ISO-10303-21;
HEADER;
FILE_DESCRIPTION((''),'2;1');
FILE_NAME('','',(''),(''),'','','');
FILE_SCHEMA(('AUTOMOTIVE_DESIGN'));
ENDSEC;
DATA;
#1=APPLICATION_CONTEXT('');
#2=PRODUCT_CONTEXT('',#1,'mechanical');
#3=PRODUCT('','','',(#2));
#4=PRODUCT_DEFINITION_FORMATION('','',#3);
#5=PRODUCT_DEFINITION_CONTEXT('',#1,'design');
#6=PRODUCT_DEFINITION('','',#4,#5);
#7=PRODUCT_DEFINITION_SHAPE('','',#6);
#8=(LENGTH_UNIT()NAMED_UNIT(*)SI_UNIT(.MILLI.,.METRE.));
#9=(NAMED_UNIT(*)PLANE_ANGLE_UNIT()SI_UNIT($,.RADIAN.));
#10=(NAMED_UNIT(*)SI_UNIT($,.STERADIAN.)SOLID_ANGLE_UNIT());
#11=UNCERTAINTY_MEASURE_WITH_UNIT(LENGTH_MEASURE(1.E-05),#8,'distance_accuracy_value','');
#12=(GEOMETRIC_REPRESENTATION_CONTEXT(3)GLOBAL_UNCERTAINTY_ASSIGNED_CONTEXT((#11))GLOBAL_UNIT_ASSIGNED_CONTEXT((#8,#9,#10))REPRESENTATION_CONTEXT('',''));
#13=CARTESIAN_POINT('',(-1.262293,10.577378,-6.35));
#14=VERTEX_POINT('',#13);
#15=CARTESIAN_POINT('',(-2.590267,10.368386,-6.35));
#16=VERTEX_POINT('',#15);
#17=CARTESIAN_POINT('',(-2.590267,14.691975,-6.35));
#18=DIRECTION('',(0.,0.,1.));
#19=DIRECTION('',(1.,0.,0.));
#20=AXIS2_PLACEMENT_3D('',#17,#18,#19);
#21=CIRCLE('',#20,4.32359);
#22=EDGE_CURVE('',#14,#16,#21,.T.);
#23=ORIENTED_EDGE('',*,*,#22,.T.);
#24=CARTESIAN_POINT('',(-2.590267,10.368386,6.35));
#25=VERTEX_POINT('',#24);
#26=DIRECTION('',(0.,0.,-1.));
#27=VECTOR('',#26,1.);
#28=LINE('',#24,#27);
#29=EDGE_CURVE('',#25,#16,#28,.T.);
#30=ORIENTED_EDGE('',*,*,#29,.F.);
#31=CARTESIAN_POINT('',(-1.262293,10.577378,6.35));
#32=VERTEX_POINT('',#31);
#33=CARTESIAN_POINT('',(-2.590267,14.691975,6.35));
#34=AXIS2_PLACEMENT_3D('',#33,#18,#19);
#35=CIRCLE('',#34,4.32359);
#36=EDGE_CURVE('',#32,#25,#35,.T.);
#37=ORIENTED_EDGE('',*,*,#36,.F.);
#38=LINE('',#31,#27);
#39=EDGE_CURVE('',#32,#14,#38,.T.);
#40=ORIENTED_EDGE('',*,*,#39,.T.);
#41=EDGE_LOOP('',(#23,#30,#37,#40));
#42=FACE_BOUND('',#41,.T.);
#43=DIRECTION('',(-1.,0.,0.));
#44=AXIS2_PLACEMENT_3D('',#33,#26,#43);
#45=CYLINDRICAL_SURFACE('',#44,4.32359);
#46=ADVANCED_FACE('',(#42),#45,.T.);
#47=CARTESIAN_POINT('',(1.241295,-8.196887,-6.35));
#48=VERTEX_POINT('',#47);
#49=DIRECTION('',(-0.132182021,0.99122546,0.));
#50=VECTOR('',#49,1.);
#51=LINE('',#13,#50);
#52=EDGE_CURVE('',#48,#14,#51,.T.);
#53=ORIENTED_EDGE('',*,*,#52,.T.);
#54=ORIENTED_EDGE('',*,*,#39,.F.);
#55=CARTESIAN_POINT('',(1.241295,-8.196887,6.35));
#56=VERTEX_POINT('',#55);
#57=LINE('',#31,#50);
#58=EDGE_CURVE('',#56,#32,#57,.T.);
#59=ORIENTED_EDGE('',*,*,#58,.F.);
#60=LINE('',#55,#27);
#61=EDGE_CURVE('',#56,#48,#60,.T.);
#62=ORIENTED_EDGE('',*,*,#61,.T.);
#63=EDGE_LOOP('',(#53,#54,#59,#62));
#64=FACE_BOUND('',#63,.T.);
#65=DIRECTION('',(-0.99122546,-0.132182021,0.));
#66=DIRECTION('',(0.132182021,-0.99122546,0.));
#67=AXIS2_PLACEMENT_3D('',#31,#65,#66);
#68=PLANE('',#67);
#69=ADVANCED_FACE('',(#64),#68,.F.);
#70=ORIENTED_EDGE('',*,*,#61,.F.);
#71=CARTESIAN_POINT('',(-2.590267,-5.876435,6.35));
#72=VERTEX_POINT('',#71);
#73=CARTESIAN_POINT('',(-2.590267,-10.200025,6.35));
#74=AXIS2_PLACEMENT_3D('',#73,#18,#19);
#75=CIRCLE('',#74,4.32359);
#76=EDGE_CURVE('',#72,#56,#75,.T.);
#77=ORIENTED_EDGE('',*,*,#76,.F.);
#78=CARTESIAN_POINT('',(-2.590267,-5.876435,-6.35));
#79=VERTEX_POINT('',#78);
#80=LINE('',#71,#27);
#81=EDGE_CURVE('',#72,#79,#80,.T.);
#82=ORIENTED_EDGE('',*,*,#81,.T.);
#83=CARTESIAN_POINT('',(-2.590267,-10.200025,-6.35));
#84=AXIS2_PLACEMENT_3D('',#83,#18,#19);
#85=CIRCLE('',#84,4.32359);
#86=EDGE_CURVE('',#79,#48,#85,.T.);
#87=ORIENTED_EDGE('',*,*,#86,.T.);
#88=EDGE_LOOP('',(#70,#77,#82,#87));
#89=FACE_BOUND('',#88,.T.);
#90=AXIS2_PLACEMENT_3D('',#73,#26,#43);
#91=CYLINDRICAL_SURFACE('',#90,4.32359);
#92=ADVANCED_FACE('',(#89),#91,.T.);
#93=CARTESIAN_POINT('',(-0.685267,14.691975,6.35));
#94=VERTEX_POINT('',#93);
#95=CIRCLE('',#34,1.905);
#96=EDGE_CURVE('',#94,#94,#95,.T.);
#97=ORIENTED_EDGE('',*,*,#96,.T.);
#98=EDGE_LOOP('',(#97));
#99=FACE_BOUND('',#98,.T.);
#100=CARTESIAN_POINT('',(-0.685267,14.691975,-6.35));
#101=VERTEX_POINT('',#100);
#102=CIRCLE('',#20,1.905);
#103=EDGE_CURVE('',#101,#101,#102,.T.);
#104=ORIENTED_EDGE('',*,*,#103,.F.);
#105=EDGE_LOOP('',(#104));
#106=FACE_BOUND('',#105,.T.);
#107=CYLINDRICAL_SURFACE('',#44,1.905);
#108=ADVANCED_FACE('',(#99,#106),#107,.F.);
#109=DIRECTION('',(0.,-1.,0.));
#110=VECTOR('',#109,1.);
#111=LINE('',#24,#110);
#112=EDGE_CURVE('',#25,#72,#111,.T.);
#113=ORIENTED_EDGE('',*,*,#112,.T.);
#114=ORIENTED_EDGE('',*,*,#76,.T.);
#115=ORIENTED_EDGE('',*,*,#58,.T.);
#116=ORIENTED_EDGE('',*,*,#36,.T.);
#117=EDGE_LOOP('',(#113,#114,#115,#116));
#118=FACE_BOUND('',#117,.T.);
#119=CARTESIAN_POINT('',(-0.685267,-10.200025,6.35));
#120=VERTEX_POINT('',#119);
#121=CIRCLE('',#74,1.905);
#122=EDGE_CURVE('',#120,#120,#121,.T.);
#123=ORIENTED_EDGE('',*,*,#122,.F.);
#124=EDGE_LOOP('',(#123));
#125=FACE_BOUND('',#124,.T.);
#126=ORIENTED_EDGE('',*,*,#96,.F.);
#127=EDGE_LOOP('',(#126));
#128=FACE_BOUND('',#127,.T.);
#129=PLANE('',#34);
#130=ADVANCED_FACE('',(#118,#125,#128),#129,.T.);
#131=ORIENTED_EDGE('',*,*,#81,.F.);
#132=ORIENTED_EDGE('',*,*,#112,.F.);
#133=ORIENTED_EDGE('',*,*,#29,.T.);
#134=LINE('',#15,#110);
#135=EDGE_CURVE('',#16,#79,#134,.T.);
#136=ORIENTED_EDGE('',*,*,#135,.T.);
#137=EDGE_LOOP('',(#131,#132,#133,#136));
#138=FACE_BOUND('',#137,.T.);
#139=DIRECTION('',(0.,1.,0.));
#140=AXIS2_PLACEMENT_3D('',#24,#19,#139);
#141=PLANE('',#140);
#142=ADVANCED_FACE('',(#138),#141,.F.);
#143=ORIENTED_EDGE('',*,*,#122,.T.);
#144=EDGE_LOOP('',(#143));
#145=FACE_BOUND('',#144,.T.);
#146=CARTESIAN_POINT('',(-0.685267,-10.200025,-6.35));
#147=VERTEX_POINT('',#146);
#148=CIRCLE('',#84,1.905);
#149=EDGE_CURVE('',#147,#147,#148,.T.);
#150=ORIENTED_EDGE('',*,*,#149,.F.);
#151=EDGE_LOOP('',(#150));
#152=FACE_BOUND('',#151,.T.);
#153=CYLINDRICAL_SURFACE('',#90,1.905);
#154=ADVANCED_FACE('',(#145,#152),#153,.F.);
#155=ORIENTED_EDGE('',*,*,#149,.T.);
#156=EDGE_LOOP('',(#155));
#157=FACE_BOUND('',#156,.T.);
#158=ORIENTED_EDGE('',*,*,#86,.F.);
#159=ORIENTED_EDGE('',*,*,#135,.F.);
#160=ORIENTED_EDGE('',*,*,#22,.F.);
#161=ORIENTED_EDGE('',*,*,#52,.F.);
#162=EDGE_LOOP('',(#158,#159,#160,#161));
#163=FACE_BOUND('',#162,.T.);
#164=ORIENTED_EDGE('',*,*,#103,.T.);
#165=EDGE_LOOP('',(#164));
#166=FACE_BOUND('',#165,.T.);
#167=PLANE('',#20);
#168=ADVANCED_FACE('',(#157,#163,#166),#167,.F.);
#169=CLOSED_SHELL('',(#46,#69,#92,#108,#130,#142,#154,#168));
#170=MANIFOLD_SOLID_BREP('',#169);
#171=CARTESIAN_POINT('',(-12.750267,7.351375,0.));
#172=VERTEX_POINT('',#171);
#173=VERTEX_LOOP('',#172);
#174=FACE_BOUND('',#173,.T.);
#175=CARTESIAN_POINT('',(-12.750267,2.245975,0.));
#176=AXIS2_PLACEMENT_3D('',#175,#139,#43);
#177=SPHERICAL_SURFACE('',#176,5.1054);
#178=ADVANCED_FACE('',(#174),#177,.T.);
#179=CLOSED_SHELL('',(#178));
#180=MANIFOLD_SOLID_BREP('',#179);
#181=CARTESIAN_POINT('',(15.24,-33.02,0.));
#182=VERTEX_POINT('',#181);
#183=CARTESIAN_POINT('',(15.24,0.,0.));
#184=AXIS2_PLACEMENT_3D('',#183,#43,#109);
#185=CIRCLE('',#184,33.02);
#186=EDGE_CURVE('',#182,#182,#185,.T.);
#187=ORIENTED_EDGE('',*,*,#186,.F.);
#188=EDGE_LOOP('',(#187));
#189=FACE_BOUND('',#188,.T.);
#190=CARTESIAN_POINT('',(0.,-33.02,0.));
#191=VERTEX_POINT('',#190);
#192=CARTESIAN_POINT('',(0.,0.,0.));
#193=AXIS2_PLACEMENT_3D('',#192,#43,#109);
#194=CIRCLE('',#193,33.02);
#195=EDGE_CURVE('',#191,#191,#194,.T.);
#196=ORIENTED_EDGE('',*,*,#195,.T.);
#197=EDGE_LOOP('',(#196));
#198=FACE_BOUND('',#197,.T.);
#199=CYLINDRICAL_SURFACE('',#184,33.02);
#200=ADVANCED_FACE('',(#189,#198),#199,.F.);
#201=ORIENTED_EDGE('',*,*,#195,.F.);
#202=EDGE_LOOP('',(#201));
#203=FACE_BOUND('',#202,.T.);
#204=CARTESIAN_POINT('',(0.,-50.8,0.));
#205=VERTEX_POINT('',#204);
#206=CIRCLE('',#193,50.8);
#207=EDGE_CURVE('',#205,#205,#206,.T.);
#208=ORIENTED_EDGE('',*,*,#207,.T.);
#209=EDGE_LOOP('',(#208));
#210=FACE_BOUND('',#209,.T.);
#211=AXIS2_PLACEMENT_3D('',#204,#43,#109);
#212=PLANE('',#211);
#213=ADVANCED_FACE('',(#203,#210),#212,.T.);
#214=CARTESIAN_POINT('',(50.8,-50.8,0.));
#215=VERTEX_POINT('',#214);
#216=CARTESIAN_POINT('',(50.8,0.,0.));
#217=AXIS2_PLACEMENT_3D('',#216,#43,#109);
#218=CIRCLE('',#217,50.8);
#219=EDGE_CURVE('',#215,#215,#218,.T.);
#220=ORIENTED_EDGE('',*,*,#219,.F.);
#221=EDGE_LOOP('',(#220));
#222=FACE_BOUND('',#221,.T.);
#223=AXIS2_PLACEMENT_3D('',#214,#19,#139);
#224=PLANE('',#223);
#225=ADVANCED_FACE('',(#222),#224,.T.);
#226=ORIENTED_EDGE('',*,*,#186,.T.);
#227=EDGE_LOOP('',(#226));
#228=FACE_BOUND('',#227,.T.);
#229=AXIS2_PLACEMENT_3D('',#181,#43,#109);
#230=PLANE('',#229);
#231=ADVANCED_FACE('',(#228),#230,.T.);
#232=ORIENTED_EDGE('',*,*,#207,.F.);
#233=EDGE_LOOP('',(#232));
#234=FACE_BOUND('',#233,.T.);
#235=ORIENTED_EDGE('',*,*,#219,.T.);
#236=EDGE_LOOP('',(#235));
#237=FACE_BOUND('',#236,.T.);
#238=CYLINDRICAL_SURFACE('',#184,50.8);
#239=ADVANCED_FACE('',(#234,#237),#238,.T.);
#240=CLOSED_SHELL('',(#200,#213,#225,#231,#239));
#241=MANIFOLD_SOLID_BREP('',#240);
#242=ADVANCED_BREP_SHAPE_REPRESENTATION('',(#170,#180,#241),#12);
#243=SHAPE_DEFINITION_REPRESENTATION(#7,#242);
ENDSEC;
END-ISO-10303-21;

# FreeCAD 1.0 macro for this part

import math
import FreeCAD as App
import Part
import Sketcher

V = App.Vector
Q = App.Units.Quantity


def add_polygon(sketch, points):
    """Adds a closed chain of lines whose ends are joined by coincident constraints."""
    first, n = sketch.GeometryCount, len(points)
    for a, b in zip(points, points[1:] + points[:1]):
        sketch.addGeometry(Part.LineSegment(App.Vector(*a, 0), App.Vector(*b, 0)), False)
    for i in range(n):
        sketch.addConstraint(Sketcher.Constraint("Coincident", first + i, 2, first + (i + 1) % n, 1))

doc = App.newDocument("Part")
body = doc.addObject("PartDesign::Body", "Body")

# Sketch on XY plane
sketch1 = body.newObject("Sketcher::SketchObject", "Sketch")
sketch1.AttachmentSupport = (doc.getObject("XY_Plane"), [""])
sketch1.MapMode = "FlatFace"
add_polygon(sketch1, [(50.8, -50.8), (50.8, 0), (15.24, 0), (15.24, -33.02), (0, -33.02), (0, -50.8)])  # lines 0-5
sketch1.addConstraint(Sketcher.Constraint("Vertical", 0))
sketch1.addConstraint(Sketcher.Constraint("Horizontal", 1))
sketch1.addConstraint(Sketcher.Constraint("Vertical", 2))
sketch1.addConstraint(Sketcher.Constraint("Horizontal", 3))
sketch1.addConstraint(Sketcher.Constraint("Vertical", 4))
sketch1.addConstraint(Sketcher.Constraint("Horizontal", 5))
sketch1.addConstraint(Sketcher.Constraint("PointOnObject", 0, 2, -1))
sketch1.addConstraint(Sketcher.Constraint("PointOnObject", 3, 2, -2))
sketch1.addConstraint(Sketcher.Constraint("Equal", 5, 0))
sketch1.addConstraint(Sketcher.Constraint("DistanceX", 5, 1, 5, 2, Q("2 in")))
sketch1.addConstraint(Sketcher.Constraint("DistanceX", 1, 2, 1, 1, Q("1.4 in")))
sketch1.addConstraint(Sketcher.Constraint("DistanceY", 2, 2, 2, 1, Q("1.3 in")))
revolution = body.newObject("PartDesign::Revolution", "Revolution")
revolution.Profile = sketch1
revolution.ReferenceAxis = (sketch1, ["H_Axis"])
revolution.Angle = 360
body2 = doc.addObject("PartDesign::Body", "Body001")

# Sketch on XY plane
sketch2 = body2.newObject("Sketcher::SketchObject", "Sketch001")
sketch2.AttachmentSupport = (doc.getObject("XY_Plane001"), [""])
sketch2.MapMode = "FlatFace"
sketch2.addGeometry(Part.LineSegment(V(1.241295, -8.196887, 0), V(-1.262293, 10.577378, 0)), False)
sketch2.addGeometry(Part.ArcOfCircle(Part.Circle(V(-2.590267, 14.691975, 0), V(0, 0, 1), 4.32359), math.radians(-72.112673), math.radians(270)), False)
sketch2.addGeometry(Part.LineSegment(V(-2.590267, 10.368386, 0), V(-2.590267, -5.876435, 0)), False)
sketch2.addGeometry(Part.ArcOfCircle(Part.Circle(V(-2.590267, -10.200025, 0), V(0, 0, 1), 4.32359), math.radians(90), math.radians(387.600535)), False)
sketch2.addGeometry(Part.Circle(V(-2.590267, -10.200025, 0), V(0, 0, 1), 1.905), False)
sketch2.addGeometry(Part.Circle(V(-2.590267, 14.691975, 0), V(0, 0, 1), 1.905), False)
sketch2.addConstraint(Sketcher.Constraint("Coincident", 0, 2, 1, 1))
sketch2.addConstraint(Sketcher.Constraint("Coincident", 1, 2, 2, 1))
sketch2.addConstraint(Sketcher.Constraint("Coincident", 2, 2, 3, 1))
sketch2.addConstraint(Sketcher.Constraint("Coincident", 3, 2, 0, 1))
sketch2.addConstraint(Sketcher.Constraint("Vertical", 2))
sketch2.addConstraint(Sketcher.Constraint("Coincident", 4, 3, 3, 3))
sketch2.addConstraint(Sketcher.Constraint("Coincident", 5, 3, 1, 3))
sketch2.addConstraint(Sketcher.Constraint("Equal", 1, 3))
sketch2.addConstraint(Sketcher.Constraint("Equal", 4, 5))
sketch2.addConstraint(Sketcher.Constraint("Vertical", 1, 3, 3, 3))
sketch2.addConstraint(Sketcher.Constraint("Vertical", 5, 3, 1, 2))
sketch2.addConstraint(Sketcher.Constraint("Diameter", 4, Q("0.15 in")))
sketch2.addConstraint(Sketcher.Constraint("DistanceY", 3, 3, 1, 3, Q("0.98 in")))
sketch2.addConstraint(Sketcher.Constraint("Radius", 1, Q("4.32359 mm")))
sketch2.addConstraint(Sketcher.Constraint("Distance", 0, Q("18.940458 mm")))
sketch2.addConstraint(Sketcher.Constraint("DistanceX", 3, 3, 3, 2, Q("3.831562 mm")))
sketch2.addConstraint(Sketcher.Constraint("DistanceX", 1, 3, -1, 1, Q("2.590267 mm")))
sketch2.addConstraint(Sketcher.Constraint("DistanceY", -1, 1, 1, 3, Q("14.691975 mm")))
pad1 = body2.newObject("PartDesign::Pad", "Pad")
pad1.Profile = sketch2
pad1.Length = Q("0.5 in")
pad1.Midplane = True
body3 = doc.addObject("PartDesign::Body", "Body002")

# Sketch on XY plane
sketch3 = body3.newObject("Sketcher::SketchObject", "Sketch002")
sketch3.AttachmentSupport = (doc.getObject("XY_Plane002"), [""])
sketch3.MapMode = "FlatFace"
sketch3.addGeometry(Part.LineSegment(V(-12.750267, -2.859425, 0), V(-12.750267, 7.351375, 0)), False)
sketch3.addGeometry(Part.ArcOfCircle(Part.Circle(V(-12.750267, 2.245975, 0), V(0, 0, 1), 5.1054), math.radians(90), math.radians(270)), False)
sketch3.addGeometry(Part.LineSegment(V(-12.750267, 7.351375, 0), V(-12.750267, -2.859425, 0)), True)  # axis
sketch3.addConstraint(Sketcher.Constraint("Coincident", 0, 1, 1, 2))
sketch3.addConstraint(Sketcher.Constraint("Coincident", 1, 1, 0, 2))
sketch3.addConstraint(Sketcher.Constraint("Vertical", 0))
sketch3.addConstraint(Sketcher.Constraint("Vertical", 2))
sketch3.addConstraint(Sketcher.Constraint("Coincident", 2, 1, 1, 1))
sketch3.addConstraint(Sketcher.Constraint("Vertical", 1, 3, 0, 1))
sketch3.addConstraint(Sketcher.Constraint("Equal", 0, 2))
sketch3.addConstraint(Sketcher.Constraint("Radius", 1, Q("0.201 in")))
sketch3.addConstraint(Sketcher.Constraint("DistanceX", 1, 3, -1, 1, Q("12.750267 mm")))
sketch3.addConstraint(Sketcher.Constraint("DistanceY", -1, 1, 1, 3, Q("2.245975 mm")))
revolution2 = body3.newObject("PartDesign::Revolution", "Revolution001")
revolution2.Profile = sketch3
revolution2.ReferenceAxis = (sketch3, ["Axis0"])
revolution2.Angle = 360

doc.recompute()
